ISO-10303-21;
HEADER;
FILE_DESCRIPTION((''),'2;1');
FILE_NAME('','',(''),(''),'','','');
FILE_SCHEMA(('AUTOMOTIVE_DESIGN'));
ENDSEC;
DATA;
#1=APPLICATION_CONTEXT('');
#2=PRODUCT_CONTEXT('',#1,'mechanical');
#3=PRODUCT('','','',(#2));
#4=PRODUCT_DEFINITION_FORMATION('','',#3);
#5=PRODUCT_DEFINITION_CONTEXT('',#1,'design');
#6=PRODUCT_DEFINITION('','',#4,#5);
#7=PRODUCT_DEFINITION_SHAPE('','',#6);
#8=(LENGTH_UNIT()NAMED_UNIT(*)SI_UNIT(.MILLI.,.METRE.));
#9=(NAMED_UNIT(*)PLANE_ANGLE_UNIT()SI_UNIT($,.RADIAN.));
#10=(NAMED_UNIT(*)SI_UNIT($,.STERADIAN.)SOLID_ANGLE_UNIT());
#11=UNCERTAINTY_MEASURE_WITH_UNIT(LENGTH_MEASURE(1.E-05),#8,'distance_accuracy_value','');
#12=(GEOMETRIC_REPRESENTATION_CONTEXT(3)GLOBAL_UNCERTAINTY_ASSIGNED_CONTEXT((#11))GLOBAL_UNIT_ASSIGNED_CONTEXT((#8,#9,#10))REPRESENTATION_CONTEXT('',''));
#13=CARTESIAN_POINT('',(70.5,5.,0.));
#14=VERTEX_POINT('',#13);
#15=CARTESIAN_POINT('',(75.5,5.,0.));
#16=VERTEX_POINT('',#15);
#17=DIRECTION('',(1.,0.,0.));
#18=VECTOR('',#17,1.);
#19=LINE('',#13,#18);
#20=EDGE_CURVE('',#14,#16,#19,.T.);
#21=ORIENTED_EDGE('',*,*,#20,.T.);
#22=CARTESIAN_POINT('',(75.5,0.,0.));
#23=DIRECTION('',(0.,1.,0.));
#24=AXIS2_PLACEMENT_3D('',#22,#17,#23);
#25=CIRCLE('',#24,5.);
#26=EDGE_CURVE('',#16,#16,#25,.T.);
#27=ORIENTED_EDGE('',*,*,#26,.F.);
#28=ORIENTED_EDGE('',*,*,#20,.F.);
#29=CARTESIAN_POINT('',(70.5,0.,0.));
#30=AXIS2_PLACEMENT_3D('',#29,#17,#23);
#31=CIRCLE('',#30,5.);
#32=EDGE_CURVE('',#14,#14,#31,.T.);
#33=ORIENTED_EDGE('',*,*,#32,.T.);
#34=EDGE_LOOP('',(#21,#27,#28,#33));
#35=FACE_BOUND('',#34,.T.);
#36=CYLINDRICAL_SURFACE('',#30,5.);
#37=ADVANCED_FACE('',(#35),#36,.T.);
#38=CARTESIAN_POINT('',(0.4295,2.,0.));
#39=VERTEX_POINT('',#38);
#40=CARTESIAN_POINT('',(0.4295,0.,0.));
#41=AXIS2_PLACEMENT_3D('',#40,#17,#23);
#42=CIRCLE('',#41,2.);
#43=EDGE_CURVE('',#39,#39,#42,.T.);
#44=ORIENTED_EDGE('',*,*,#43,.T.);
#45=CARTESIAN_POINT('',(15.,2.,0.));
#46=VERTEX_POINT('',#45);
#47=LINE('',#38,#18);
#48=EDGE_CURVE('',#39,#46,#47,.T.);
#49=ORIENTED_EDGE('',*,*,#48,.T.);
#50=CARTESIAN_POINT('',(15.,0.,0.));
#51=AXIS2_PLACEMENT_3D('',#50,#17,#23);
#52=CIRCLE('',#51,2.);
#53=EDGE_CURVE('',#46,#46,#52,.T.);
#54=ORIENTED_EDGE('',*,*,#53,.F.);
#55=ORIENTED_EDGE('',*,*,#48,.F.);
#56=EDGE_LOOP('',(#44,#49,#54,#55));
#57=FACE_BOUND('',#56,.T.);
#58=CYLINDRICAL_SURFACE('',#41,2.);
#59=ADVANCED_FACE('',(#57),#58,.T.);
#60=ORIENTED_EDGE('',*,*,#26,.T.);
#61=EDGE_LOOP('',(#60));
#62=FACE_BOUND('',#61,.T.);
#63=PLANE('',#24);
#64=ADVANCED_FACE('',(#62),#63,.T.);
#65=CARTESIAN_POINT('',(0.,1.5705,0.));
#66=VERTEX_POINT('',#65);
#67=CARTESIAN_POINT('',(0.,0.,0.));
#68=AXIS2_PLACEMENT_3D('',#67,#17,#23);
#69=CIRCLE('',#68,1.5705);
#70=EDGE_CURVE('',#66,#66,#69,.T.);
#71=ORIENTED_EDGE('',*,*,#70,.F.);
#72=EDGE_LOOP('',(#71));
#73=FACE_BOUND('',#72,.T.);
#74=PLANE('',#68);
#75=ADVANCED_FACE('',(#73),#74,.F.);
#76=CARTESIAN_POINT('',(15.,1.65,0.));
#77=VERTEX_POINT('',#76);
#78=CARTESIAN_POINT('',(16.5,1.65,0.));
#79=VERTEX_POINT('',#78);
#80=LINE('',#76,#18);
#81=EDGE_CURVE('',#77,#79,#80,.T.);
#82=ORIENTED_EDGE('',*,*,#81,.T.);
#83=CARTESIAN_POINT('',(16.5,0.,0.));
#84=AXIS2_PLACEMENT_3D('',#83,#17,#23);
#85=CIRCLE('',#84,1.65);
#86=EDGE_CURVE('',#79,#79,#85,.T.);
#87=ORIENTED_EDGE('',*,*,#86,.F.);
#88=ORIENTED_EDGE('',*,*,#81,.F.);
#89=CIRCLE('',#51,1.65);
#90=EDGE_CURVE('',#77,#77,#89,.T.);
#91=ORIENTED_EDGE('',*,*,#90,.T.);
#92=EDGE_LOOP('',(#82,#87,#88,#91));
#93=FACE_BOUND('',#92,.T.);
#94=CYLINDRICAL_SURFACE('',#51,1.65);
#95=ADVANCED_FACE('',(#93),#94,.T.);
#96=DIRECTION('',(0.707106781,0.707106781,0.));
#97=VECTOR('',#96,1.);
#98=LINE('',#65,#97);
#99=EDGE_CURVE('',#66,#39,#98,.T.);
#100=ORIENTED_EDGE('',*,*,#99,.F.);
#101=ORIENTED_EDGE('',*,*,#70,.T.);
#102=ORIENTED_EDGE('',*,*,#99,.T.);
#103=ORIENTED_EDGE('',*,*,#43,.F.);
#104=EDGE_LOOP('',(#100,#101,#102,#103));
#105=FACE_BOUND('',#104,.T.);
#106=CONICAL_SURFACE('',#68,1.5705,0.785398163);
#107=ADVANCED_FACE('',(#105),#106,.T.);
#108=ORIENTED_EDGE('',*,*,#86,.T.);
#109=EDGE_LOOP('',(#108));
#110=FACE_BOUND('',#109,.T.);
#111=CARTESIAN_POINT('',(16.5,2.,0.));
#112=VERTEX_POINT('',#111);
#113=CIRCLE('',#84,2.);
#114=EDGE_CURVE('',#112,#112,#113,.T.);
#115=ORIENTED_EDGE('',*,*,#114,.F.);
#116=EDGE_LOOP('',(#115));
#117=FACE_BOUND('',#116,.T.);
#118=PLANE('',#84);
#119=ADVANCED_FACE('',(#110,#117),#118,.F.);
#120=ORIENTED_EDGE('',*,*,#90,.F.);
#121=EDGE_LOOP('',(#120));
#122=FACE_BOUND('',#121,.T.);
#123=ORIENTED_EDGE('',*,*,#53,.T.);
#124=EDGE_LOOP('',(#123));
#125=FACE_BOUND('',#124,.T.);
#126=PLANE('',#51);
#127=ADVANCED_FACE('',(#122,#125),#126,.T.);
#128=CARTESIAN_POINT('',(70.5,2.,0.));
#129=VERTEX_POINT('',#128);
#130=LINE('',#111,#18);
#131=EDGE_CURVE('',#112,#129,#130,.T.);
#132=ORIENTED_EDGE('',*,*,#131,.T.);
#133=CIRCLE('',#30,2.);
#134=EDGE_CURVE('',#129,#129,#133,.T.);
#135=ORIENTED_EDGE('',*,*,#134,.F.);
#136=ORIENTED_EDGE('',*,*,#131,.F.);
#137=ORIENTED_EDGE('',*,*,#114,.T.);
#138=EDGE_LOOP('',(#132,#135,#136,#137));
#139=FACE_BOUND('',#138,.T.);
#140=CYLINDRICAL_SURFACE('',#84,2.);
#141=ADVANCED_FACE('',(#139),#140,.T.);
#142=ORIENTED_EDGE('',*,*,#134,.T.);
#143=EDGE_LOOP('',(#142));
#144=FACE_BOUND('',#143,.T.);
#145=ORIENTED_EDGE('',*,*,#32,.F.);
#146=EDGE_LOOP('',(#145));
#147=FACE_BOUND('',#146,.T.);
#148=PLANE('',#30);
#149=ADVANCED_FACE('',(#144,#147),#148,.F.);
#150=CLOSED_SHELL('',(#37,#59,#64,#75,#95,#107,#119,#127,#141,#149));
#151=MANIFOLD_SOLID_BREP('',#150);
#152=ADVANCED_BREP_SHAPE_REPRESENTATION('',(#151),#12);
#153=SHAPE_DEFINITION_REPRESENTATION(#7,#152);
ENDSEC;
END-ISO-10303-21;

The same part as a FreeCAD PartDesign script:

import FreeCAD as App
import Part
import Sketcher

V = App.Vector
Q = App.Units.Quantity

doc = App.newDocument("Part")
params = doc.addObject("Spreadsheet::Sheet", "Params")
for row, (alias, value) in enumerate([
    ("sketch1_width", "5 mm"),
    ("sketch1_width2", "54 mm"),
    ("sketch1_height", "3 mm"),
    ("sketch1_width3", "75.5 mm"),
    ("sketch1_width4", "1.5 mm"),
    ("revolution_angle", "360 deg"),
], start=1):
    params.set(f"A{row}", alias)
    params.set(f"B{row}", "=" + value)
    params.setAlias(f"B{row}", alias)

body = doc.addObject("PartDesign::Body", "Body")

# Sketch on XY plane
sketch1 = body.newObject("Sketcher::SketchObject", "Sketch")
sketch1.AttachmentSupport = (doc.getObject("XY_Plane"), [""])
sketch1.MapMode = "FlatFace"
sketch1.addGeometry([
    Part.LineSegment(V(0, 0, 0), V(75.5, 0, 0)),  # 0
    Part.LineSegment(V(75.5, 0, 0), V(75.5, 5, 0)),  # 1
    Part.LineSegment(V(75.5, 5, 0), V(70.5, 5, 0)),  # 2
    Part.LineSegment(V(70.5, 5, 0), V(70.5, 2, 0)),  # 3
    Part.LineSegment(V(70.5, 2, 0), V(16.5, 2, 0)),  # 4
    Part.LineSegment(V(16.5, 2, 0), V(16.5, 1.65, 0)),  # 5
    Part.LineSegment(V(16.5, 1.65, 0), V(15, 1.65, 0)),  # 6
    Part.LineSegment(V(15, 1.65, 0), V(15, 2, 0)),  # 7
    Part.LineSegment(V(15, 2, 0), V(0.43, 2, 0)),  # 8
    Part.LineSegment(V(0.43, 2, 0), V(0, 1.57, 0)),  # 9
    Part.LineSegment(V(0, 1.57, 0), V(0, 0, 0)),  # 10
], False)
sketch1.addConstraint([
    Sketcher.Constraint("Coincident", 0, 2, 1, 1),
    Sketcher.Constraint("Coincident", 1, 2, 2, 1),
    Sketcher.Constraint("Coincident", 2, 2, 3, 1),
    Sketcher.Constraint("Coincident", 3, 2, 4, 1),
    Sketcher.Constraint("Coincident", 4, 2, 5, 1),
    Sketcher.Constraint("Coincident", 5, 2, 6, 1),
    Sketcher.Constraint("Coincident", 6, 2, 7, 1),
    Sketcher.Constraint("Coincident", 7, 2, 8, 1),
    Sketcher.Constraint("Coincident", 8, 2, 9, 1),
    Sketcher.Constraint("Coincident", 9, 2, 10, 1),
    Sketcher.Constraint("Coincident", 10, 2, 0, 1),
    Sketcher.Constraint("Horizontal", 0),
    Sketcher.Constraint("Vertical", 1),
    Sketcher.Constraint("Horizontal", 2),
    Sketcher.Constraint("Vertical", 3),
    Sketcher.Constraint("Horizontal", 4),
    Sketcher.Constraint("Vertical", 5),
    Sketcher.Constraint("Horizontal", 6),
    Sketcher.Constraint("Vertical", 7),
    Sketcher.Constraint("Horizontal", 8),
    Sketcher.Constraint("Vertical", 10),
    Sketcher.Constraint("Coincident", 10, 2, -1, 1),
    Sketcher.Constraint("Horizontal", 4, 2, 7, 2),
    Sketcher.Constraint("Equal", 2, 1),
    Sketcher.Constraint("DistanceX", 2, 2, 2, 1, Q("5 mm")),
    Sketcher.Constraint("DistanceX", 4, 2, 4, 1, Q("54 mm")),
    Sketcher.Constraint("DistanceY", 3, 2, 3, 1, Q("3 mm")),
    Sketcher.Constraint("Angle", 9, Q("-135 deg")),
    Sketcher.Constraint("DistanceX", 0, 1, 0, 2, Q("75.5 mm")),
    Sketcher.Constraint("DistanceX", 6, 2, 6, 1, Q("1.5 mm")),
    Sketcher.Constraint("DistanceY", 5, 2, 5, 1, Q("0.35 mm")),
    Sketcher.Constraint("DistanceX", 8, 2, 8, 1, Q("14.5705 mm")),
])
sketch1.setExpression("Constraints[24]", "Params.sketch1_width")
sketch1.setExpression("Constraints[25]", "Params.sketch1_width2")
sketch1.setExpression("Constraints[26]", "Params.sketch1_height")
sketch1.setExpression("Constraints[28]", "Params.sketch1_width3")
sketch1.setExpression("Constraints[29]", "Params.sketch1_width4")
revolution = body.newObject("PartDesign::Revolution", "Revolution")
revolution.Profile = sketch1
revolution.ReferenceAxis = (sketch1, ["H_Axis"])
revolution.setExpression("Angle", "Params.revolution_angle")

doc.recompute()
